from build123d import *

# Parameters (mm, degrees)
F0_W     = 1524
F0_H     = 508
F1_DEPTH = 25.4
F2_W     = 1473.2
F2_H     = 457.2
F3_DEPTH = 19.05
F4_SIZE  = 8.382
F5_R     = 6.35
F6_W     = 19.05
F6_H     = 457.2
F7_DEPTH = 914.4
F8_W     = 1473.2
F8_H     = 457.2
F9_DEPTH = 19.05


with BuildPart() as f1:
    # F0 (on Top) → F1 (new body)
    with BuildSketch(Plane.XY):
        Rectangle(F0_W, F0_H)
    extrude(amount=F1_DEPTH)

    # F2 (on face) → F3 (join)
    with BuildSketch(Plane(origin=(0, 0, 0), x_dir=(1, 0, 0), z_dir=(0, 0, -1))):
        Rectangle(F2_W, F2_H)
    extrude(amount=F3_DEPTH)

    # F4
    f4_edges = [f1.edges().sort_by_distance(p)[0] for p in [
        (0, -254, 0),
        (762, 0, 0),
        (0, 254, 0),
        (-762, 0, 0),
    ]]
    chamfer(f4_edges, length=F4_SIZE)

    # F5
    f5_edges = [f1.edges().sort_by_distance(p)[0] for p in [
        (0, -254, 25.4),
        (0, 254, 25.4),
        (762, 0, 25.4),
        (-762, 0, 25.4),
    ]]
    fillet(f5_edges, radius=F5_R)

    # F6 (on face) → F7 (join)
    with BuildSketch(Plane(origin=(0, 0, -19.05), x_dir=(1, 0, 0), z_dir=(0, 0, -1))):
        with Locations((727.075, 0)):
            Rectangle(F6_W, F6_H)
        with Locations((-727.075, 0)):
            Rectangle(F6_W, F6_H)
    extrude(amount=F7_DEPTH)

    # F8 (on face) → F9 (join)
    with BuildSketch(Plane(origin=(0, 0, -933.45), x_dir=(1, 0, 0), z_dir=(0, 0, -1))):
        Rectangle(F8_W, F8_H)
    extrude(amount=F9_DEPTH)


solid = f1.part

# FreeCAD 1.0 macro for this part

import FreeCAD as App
import Part
import Sketcher
Q = App.Units.Quantity


def edges_at(feature, points):
    """Names of the edges that pass closest to the given points."""
    edges = feature.Shape.Edges
    near = lambda p: min(range(len(edges)), key=lambda i: edges[i].distToShape(Part.Vertex(*p))[0])
    return sorted({f"Edge{near(p) + 1}" for p in points})

doc = App.newDocument("Part")
body = doc.addObject("PartDesign::Body", "Body")

# Sketch on XY plane
sketch1 = doc.addObject("Sketcher::SketchObject", "Sketch")
body.addObject(sketch1)
sketch1.AttachmentSupport = (doc.XY_Plane, [""])
sketch1.MapMode = "FlatFace"
sketch1.addGeometry([
    Part.LineSegment(App.Vector(-762, 254, 0), App.Vector(-762, -254, 0)),
    Part.LineSegment(App.Vector(-762, -254, 0), App.Vector(762, -254, 0)),
    Part.LineSegment(App.Vector(762, -254, 0), App.Vector(762, 254, 0)),
    Part.LineSegment(App.Vector(762, 254, 0), App.Vector(-762, 254, 0)),
], False)
sketch1.addConstraint([
    Sketcher.Constraint("Coincident", 0, 2, 1, 1),
    Sketcher.Constraint("Coincident", 1, 2, 2, 1),
    Sketcher.Constraint("Coincident", 2, 2, 3, 1),
    Sketcher.Constraint("Coincident", 3, 2, 0, 1),
    Sketcher.Constraint("Vertical", 0),
    Sketcher.Constraint("Horizontal", 1),
    Sketcher.Constraint("Vertical", 2),
    Sketcher.Constraint("Horizontal", 3),
    Sketcher.Constraint("Symmetric", 0, 2, 2, 2, -1, 1),
    Sketcher.Constraint("DistanceX", 1, 1, 1, 2, Q("60 in")),
    Sketcher.Constraint("DistanceY", 0, 2, 0, 1, Q("20 in")),
])
pad1 = doc.addObject("PartDesign::Pad", "Pad")
body.addObject(pad1)
pad1.Profile = sketch1
pad1.Length = Q("1 in")

# Sketch on XY plane
sketch2 = doc.addObject("Sketcher::SketchObject", "Sketch001")
body.addObject(sketch2)
sketch2.AttachmentSupport = (doc.XY_Plane, [""])
sketch2.MapMode = "FlatFace"
sketch2.addGeometry([
    Part.LineSegment(App.Vector(-736.6, -228.6, 0), App.Vector(-736.6, 228.6, 0)),
    Part.LineSegment(App.Vector(-736.6, 228.6, 0), App.Vector(736.6, 228.6, 0)),
    Part.LineSegment(App.Vector(736.6, 228.6, 0), App.Vector(736.6, -228.6, 0)),
    Part.LineSegment(App.Vector(736.6, -228.6, 0), App.Vector(-736.6, -228.6, 0)),
], False)
sketch2.addConstraint([
    Sketcher.Constraint("Coincident", 0, 2, 1, 1),
    Sketcher.Constraint("Coincident", 1, 2, 2, 1),
    Sketcher.Constraint("Coincident", 2, 2, 3, 1),
    Sketcher.Constraint("Coincident", 3, 2, 0, 1),
    Sketcher.Constraint("Vertical", 0),
    Sketcher.Constraint("Horizontal", 1),
    Sketcher.Constraint("Vertical", 2),
    Sketcher.Constraint("Horizontal", 3),
    Sketcher.Constraint("Symmetric", 0, 2, 2, 2, -1, 1),
    Sketcher.Constraint("DistanceX", 1, 1, 1, 2, Q("58 in")),
    Sketcher.Constraint("DistanceY", 0, 1, 0, 2, Q("18 in")),
])
pad2 = doc.addObject("PartDesign::Pad", "Pad001")
body.addObject(pad2)
pad2.Profile = sketch2
pad2.Length = Q("0.75 in")
pad2.Reversed = True
doc.recompute()

chamfer = doc.addObject("PartDesign::Chamfer", "Chamfer")
body.addObject(chamfer)
chamfer.Base = (pad2, edges_at(pad2, [
    (0, -254, 0),
    (762, 0, 0),
    (0, 254, 0),
    (-762, 0, 0),
]))
chamfer.Size = Q("0.33 in")
doc.recompute()

fillet = doc.addObject("PartDesign::Fillet", "Fillet")
body.addObject(fillet)
fillet.Base = (chamfer, edges_at(chamfer, [
    (0, -254, 25.4),
    (0, 254, 25.4),
    (762, 0, 25.4),
    (-762, 0, 25.4),
]))
fillet.Radius = Q("0.25 in")

# Sketch on XY plane
sketch3 = doc.addObject("Sketcher::SketchObject", "Sketch002")
body.addObject(sketch3)
sketch3.AttachmentSupport = (doc.XY_Plane, [""])
sketch3.MapMode = "FlatFace"
sketch3.AttachmentOffset = App.Placement(App.Vector(0, 0, -0.75 * 25.4), App.Rotation())
sketch3.addGeometry([
    Part.LineSegment(App.Vector(717.55, -228.6, 0), App.Vector(717.55, 228.6, 0)),  # 0
    Part.LineSegment(App.Vector(717.55, 228.6, 0), App.Vector(736.6, 228.6, 0)),  # 1
    Part.LineSegment(App.Vector(736.6, 228.6, 0), App.Vector(736.6, -228.6, 0)),  # 2
    Part.LineSegment(App.Vector(736.6, -228.6, 0), App.Vector(717.55, -228.6, 0)),  # 3
    Part.LineSegment(App.Vector(-736.6, -228.6, 0), App.Vector(-736.6, 228.6, 0)),  # 4
    Part.LineSegment(App.Vector(-736.6, 228.6, 0), App.Vector(-717.55, 228.6, 0)),  # 5
    Part.LineSegment(App.Vector(-717.55, 228.6, 0), App.Vector(-717.55, -228.6, 0)),  # 6
    Part.LineSegment(App.Vector(-717.55, -228.6, 0), App.Vector(-736.6, -228.6, 0)),  # 7
], False)
sketch3.addConstraint([
    Sketcher.Constraint("Coincident", 0, 2, 1, 1),
    Sketcher.Constraint("Coincident", 1, 2, 2, 1),
    Sketcher.Constraint("Coincident", 2, 2, 3, 1),
    Sketcher.Constraint("Coincident", 3, 2, 0, 1),
    Sketcher.Constraint("Coincident", 4, 2, 5, 1),
    Sketcher.Constraint("Coincident", 5, 2, 6, 1),
    Sketcher.Constraint("Coincident", 6, 2, 7, 1),
    Sketcher.Constraint("Coincident", 7, 2, 4, 1),
    Sketcher.Constraint("Vertical", 0),
    Sketcher.Constraint("Horizontal", 1),
    Sketcher.Constraint("Vertical", 2),
    Sketcher.Constraint("Horizontal", 3),
    Sketcher.Constraint("Vertical", 4),
    Sketcher.Constraint("Horizontal", 5),
    Sketcher.Constraint("Vertical", 6),
    Sketcher.Constraint("Horizontal", 7),
    Sketcher.Constraint("Symmetric", 2, 2, 4, 2, -1, 1),
    Sketcher.Constraint("Symmetric", 0, 2, 6, 2, -1, 1),
    Sketcher.Constraint("Horizontal", 1, 2, 4, 2),
    Sketcher.Constraint("DistanceY", 0, 1, 0, 2, Q("18 in")),
    Sketcher.Constraint("DistanceX", -1, 1, 1, 2, Q("29 in")),
    Sketcher.Constraint("DistanceX", 1, 1, 1, 2, Q("0.75 in")),
])
pad3 = doc.addObject("PartDesign::Pad", "Pad002")
body.addObject(pad3)
pad3.Profile = sketch3
pad3.Length = Q("36 in")
pad3.Reversed = True

# Sketch on XY plane
sketch4 = doc.addObject("Sketcher::SketchObject", "Sketch003")
body.addObject(sketch4)
sketch4.AttachmentSupport = (doc.XY_Plane, [""])
sketch4.MapMode = "FlatFace"
sketch4.AttachmentOffset = App.Placement(App.Vector(0, 0, -36.75 * 25.4), App.Rotation())
sketch4.addGeometry([
    Part.LineSegment(App.Vector(-736.6, -228.6, 0), App.Vector(-736.6, 228.6, 0)),
    Part.LineSegment(App.Vector(-736.6, 228.6, 0), App.Vector(736.6, 228.6, 0)),
    Part.LineSegment(App.Vector(736.6, 228.6, 0), App.Vector(736.6, -228.6, 0)),
    Part.LineSegment(App.Vector(736.6, -228.6, 0), App.Vector(-736.6, -228.6, 0)),
], False)
sketch4.addConstraint([
    Sketcher.Constraint("Coincident", 0, 2, 1, 1),
    Sketcher.Constraint("Coincident", 1, 2, 2, 1),
    Sketcher.Constraint("Coincident", 2, 2, 3, 1),
    Sketcher.Constraint("Coincident", 3, 2, 0, 1),
    Sketcher.Constraint("Vertical", 0),
    Sketcher.Constraint("Horizontal", 1),
    Sketcher.Constraint("Vertical", 2),
    Sketcher.Constraint("Horizontal", 3),
    Sketcher.Constraint("Symmetric", 0, 2, 2, 2, -1, 1),
    Sketcher.Constraint("DistanceX", 1, 1, 1, 2, Q("58 in")),
    Sketcher.Constraint("DistanceY", 0, 1, 0, 2, Q("18 in")),
])
pad4 = doc.addObject("PartDesign::Pad", "Pad003")
body.addObject(pad4)
pad4.Profile = sketch4
pad4.Length = Q("0.75 in")
pad4.Reversed = True

doc.recompute()
